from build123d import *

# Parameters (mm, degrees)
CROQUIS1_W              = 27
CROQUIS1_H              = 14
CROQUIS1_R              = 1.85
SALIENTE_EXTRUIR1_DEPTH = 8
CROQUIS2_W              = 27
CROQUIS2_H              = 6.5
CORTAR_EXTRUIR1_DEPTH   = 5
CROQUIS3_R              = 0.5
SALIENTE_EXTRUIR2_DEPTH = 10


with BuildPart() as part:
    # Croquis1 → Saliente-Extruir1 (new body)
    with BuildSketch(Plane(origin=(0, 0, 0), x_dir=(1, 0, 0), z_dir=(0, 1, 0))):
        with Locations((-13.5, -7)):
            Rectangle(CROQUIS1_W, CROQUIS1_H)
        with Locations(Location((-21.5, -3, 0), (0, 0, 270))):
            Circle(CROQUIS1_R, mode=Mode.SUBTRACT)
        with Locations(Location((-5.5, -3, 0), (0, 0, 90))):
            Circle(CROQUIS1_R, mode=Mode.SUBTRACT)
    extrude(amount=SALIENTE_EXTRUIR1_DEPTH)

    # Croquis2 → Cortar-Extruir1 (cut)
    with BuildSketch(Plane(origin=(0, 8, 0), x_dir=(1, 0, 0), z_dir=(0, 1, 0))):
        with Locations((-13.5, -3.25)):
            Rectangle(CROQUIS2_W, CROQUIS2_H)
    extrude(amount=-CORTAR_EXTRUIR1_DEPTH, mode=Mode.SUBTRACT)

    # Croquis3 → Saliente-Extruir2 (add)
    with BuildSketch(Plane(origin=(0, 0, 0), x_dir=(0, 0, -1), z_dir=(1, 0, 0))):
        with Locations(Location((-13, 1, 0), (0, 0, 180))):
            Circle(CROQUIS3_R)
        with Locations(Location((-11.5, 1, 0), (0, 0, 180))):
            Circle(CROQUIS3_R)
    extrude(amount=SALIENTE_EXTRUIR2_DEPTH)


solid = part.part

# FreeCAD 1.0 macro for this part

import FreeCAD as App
import Part
import Sketcher

V = App.Vector
Q = App.Units.Quantity

doc = App.newDocument("Part")
body = doc.addObject("PartDesign::Body", "Body")

sketch1 = doc.addObject("Sketcher::SketchObject", "Sketch")
body.addObject(sketch1)
sketch1.AttachmentSupport = (doc.XZ_Plane, [""])
sketch1.MapMode = "FlatFace"
sketch1.addGeometry(Part.LineSegment(V(-27, 0, 0), V(-27, 14, 0)), False)
sketch1.addGeometry(Part.LineSegment(V(-27, 14, 0), V(0, 14, 0)), False)
sketch1.addGeometry(Part.LineSegment(V(0, 14, 0), V(0, 0, 0)), False)
sketch1.addGeometry(Part.LineSegment(V(0, 0, 0), V(-27, 0, 0)), False)
sketch1.addGeometry(Part.Circle(V(-21.5, 3, 0), V(0, 0, 1), 1.85), False)
sketch1.addGeometry(Part.Circle(V(-5.5, 3, 0), V(0, 0, 1), 1.85), False)
sketch1.addConstraint(Sketcher.Constraint("Coincident", 0, 2, 1, 1))
sketch1.addConstraint(Sketcher.Constraint("Coincident", 1, 2, 2, 1))
sketch1.addConstraint(Sketcher.Constraint("Coincident", 2, 2, 3, 1))
sketch1.addConstraint(Sketcher.Constraint("Coincident", 3, 2, 0, 1))
sketch1.addConstraint(Sketcher.Constraint("Vertical", 0))
sketch1.addConstraint(Sketcher.Constraint("Horizontal", 1))
sketch1.addConstraint(Sketcher.Constraint("Vertical", 2))
sketch1.addConstraint(Sketcher.Constraint("Horizontal", 3))
sketch1.addConstraint(Sketcher.Constraint("Coincident", 2, 2, -1, 1))
sketch1.addConstraint(Sketcher.Constraint("Equal", 4, 5))
sketch1.addConstraint(Sketcher.Constraint("Horizontal", 4, 3, 5, 3))
sketch1.addConstraint(Sketcher.Constraint("Diameter", 4, Q("3.7 mm")))
sketch1.addConstraint(Sketcher.Constraint("DistanceX", 1, 1, 1, 2, Q("27 mm")))
sketch1.addConstraint(Sketcher.Constraint("DistanceY", 0, 1, 0, 2, Q("14 mm")))
sketch1.addConstraint(Sketcher.Constraint("DistanceY", -1, 1, 4, 3, Q("3 mm")))
sketch1.addConstraint(Sketcher.Constraint("DistanceX", 4, 3, 5, 3, Q("16 mm")))
sketch1.addConstraint(Sketcher.Constraint("DistanceX", 4, 3, -1, 1, Q("21.5 mm")))
pad1 = doc.addObject("PartDesign::Pad", "Pad")
body.addObject(pad1)
pad1.Profile = sketch1
pad1.Length = 8
pad1.Reversed = True

sketch2 = doc.addObject("Sketcher::SketchObject", "Sketch001")
body.addObject(sketch2)
sketch2.AttachmentSupport = (doc.XZ_Plane, [""])
sketch2.MapMode = "FlatFace"
sketch2.AttachmentOffset = App.Placement(V(0, 0, -8), App.Rotation())
sketch2.addGeometry(Part.LineSegment(V(-27, 0, 0), V(-27, 6.5, 0)), False)
sketch2.addGeometry(Part.LineSegment(V(-27, 6.5, 0), V(0, 6.5, 0)), False)
sketch2.addGeometry(Part.LineSegment(V(0, 6.5, 0), V(0, 0, 0)), False)
sketch2.addGeometry(Part.LineSegment(V(0, 0, 0), V(-27, 0, 0)), False)
sketch2.addConstraint(Sketcher.Constraint("Coincident", 0, 2, 1, 1))
sketch2.addConstraint(Sketcher.Constraint("Coincident", 1, 2, 2, 1))
sketch2.addConstraint(Sketcher.Constraint("Coincident", 2, 2, 3, 1))
sketch2.addConstraint(Sketcher.Constraint("Coincident", 3, 2, 0, 1))
sketch2.addConstraint(Sketcher.Constraint("Vertical", 0))
sketch2.addConstraint(Sketcher.Constraint("Horizontal", 1))
sketch2.addConstraint(Sketcher.Constraint("Vertical", 2))
sketch2.addConstraint(Sketcher.Constraint("Horizontal", 3))
sketch2.addConstraint(Sketcher.Constraint("Coincident", 2, 2, -1, 1))
sketch2.addConstraint(Sketcher.Constraint("DistanceX", 1, 1, 1, 2, Q("27 mm")))
sketch2.addConstraint(Sketcher.Constraint("DistanceY", 0, 1, 0, 2, Q("6.5 mm")))
pocket1 = doc.addObject("PartDesign::Pocket", "Pocket")
body.addObject(pocket1)
pocket1.Profile = sketch2
pocket1.Length = 5
pocket1.Reversed = True

sketch3 = doc.addObject("Sketcher::SketchObject", "Sketch002")
body.addObject(sketch3)
sketch3.AttachmentSupport = (doc.YZ_Plane, [""])
sketch3.MapMode = "FlatFace"
sketch3.addGeometry(Part.Circle(V(1, 13, 0), V(0, 0, 1), 0.5), False)
sketch3.addGeometry(Part.Circle(V(1, 11.5, 0), V(0, 0, 1), 0.5), False)
sketch3.addConstraint(Sketcher.Constraint("Equal", 0, 1))
sketch3.addConstraint(Sketcher.Constraint("Vertical", 0, 3, 1, 3))
sketch3.addConstraint(Sketcher.Constraint("Diameter", 0, Q("1 mm")))
sketch3.addConstraint(Sketcher.Constraint("DistanceX", -1, 1, 0, 3, Q("1 mm")))
sketch3.addConstraint(Sketcher.Constraint("DistanceY", -1, 1, 0, 3, Q("13 mm")))
sketch3.addConstraint(Sketcher.Constraint("DistanceY", -1, 1, 1, 3, Q("11.5 mm")))
pad2 = doc.addObject("PartDesign::Pad", "Pad001")
body.addObject(pad2)
pad2.Profile = sketch3
pad2.Length = 10

doc.recompute()
